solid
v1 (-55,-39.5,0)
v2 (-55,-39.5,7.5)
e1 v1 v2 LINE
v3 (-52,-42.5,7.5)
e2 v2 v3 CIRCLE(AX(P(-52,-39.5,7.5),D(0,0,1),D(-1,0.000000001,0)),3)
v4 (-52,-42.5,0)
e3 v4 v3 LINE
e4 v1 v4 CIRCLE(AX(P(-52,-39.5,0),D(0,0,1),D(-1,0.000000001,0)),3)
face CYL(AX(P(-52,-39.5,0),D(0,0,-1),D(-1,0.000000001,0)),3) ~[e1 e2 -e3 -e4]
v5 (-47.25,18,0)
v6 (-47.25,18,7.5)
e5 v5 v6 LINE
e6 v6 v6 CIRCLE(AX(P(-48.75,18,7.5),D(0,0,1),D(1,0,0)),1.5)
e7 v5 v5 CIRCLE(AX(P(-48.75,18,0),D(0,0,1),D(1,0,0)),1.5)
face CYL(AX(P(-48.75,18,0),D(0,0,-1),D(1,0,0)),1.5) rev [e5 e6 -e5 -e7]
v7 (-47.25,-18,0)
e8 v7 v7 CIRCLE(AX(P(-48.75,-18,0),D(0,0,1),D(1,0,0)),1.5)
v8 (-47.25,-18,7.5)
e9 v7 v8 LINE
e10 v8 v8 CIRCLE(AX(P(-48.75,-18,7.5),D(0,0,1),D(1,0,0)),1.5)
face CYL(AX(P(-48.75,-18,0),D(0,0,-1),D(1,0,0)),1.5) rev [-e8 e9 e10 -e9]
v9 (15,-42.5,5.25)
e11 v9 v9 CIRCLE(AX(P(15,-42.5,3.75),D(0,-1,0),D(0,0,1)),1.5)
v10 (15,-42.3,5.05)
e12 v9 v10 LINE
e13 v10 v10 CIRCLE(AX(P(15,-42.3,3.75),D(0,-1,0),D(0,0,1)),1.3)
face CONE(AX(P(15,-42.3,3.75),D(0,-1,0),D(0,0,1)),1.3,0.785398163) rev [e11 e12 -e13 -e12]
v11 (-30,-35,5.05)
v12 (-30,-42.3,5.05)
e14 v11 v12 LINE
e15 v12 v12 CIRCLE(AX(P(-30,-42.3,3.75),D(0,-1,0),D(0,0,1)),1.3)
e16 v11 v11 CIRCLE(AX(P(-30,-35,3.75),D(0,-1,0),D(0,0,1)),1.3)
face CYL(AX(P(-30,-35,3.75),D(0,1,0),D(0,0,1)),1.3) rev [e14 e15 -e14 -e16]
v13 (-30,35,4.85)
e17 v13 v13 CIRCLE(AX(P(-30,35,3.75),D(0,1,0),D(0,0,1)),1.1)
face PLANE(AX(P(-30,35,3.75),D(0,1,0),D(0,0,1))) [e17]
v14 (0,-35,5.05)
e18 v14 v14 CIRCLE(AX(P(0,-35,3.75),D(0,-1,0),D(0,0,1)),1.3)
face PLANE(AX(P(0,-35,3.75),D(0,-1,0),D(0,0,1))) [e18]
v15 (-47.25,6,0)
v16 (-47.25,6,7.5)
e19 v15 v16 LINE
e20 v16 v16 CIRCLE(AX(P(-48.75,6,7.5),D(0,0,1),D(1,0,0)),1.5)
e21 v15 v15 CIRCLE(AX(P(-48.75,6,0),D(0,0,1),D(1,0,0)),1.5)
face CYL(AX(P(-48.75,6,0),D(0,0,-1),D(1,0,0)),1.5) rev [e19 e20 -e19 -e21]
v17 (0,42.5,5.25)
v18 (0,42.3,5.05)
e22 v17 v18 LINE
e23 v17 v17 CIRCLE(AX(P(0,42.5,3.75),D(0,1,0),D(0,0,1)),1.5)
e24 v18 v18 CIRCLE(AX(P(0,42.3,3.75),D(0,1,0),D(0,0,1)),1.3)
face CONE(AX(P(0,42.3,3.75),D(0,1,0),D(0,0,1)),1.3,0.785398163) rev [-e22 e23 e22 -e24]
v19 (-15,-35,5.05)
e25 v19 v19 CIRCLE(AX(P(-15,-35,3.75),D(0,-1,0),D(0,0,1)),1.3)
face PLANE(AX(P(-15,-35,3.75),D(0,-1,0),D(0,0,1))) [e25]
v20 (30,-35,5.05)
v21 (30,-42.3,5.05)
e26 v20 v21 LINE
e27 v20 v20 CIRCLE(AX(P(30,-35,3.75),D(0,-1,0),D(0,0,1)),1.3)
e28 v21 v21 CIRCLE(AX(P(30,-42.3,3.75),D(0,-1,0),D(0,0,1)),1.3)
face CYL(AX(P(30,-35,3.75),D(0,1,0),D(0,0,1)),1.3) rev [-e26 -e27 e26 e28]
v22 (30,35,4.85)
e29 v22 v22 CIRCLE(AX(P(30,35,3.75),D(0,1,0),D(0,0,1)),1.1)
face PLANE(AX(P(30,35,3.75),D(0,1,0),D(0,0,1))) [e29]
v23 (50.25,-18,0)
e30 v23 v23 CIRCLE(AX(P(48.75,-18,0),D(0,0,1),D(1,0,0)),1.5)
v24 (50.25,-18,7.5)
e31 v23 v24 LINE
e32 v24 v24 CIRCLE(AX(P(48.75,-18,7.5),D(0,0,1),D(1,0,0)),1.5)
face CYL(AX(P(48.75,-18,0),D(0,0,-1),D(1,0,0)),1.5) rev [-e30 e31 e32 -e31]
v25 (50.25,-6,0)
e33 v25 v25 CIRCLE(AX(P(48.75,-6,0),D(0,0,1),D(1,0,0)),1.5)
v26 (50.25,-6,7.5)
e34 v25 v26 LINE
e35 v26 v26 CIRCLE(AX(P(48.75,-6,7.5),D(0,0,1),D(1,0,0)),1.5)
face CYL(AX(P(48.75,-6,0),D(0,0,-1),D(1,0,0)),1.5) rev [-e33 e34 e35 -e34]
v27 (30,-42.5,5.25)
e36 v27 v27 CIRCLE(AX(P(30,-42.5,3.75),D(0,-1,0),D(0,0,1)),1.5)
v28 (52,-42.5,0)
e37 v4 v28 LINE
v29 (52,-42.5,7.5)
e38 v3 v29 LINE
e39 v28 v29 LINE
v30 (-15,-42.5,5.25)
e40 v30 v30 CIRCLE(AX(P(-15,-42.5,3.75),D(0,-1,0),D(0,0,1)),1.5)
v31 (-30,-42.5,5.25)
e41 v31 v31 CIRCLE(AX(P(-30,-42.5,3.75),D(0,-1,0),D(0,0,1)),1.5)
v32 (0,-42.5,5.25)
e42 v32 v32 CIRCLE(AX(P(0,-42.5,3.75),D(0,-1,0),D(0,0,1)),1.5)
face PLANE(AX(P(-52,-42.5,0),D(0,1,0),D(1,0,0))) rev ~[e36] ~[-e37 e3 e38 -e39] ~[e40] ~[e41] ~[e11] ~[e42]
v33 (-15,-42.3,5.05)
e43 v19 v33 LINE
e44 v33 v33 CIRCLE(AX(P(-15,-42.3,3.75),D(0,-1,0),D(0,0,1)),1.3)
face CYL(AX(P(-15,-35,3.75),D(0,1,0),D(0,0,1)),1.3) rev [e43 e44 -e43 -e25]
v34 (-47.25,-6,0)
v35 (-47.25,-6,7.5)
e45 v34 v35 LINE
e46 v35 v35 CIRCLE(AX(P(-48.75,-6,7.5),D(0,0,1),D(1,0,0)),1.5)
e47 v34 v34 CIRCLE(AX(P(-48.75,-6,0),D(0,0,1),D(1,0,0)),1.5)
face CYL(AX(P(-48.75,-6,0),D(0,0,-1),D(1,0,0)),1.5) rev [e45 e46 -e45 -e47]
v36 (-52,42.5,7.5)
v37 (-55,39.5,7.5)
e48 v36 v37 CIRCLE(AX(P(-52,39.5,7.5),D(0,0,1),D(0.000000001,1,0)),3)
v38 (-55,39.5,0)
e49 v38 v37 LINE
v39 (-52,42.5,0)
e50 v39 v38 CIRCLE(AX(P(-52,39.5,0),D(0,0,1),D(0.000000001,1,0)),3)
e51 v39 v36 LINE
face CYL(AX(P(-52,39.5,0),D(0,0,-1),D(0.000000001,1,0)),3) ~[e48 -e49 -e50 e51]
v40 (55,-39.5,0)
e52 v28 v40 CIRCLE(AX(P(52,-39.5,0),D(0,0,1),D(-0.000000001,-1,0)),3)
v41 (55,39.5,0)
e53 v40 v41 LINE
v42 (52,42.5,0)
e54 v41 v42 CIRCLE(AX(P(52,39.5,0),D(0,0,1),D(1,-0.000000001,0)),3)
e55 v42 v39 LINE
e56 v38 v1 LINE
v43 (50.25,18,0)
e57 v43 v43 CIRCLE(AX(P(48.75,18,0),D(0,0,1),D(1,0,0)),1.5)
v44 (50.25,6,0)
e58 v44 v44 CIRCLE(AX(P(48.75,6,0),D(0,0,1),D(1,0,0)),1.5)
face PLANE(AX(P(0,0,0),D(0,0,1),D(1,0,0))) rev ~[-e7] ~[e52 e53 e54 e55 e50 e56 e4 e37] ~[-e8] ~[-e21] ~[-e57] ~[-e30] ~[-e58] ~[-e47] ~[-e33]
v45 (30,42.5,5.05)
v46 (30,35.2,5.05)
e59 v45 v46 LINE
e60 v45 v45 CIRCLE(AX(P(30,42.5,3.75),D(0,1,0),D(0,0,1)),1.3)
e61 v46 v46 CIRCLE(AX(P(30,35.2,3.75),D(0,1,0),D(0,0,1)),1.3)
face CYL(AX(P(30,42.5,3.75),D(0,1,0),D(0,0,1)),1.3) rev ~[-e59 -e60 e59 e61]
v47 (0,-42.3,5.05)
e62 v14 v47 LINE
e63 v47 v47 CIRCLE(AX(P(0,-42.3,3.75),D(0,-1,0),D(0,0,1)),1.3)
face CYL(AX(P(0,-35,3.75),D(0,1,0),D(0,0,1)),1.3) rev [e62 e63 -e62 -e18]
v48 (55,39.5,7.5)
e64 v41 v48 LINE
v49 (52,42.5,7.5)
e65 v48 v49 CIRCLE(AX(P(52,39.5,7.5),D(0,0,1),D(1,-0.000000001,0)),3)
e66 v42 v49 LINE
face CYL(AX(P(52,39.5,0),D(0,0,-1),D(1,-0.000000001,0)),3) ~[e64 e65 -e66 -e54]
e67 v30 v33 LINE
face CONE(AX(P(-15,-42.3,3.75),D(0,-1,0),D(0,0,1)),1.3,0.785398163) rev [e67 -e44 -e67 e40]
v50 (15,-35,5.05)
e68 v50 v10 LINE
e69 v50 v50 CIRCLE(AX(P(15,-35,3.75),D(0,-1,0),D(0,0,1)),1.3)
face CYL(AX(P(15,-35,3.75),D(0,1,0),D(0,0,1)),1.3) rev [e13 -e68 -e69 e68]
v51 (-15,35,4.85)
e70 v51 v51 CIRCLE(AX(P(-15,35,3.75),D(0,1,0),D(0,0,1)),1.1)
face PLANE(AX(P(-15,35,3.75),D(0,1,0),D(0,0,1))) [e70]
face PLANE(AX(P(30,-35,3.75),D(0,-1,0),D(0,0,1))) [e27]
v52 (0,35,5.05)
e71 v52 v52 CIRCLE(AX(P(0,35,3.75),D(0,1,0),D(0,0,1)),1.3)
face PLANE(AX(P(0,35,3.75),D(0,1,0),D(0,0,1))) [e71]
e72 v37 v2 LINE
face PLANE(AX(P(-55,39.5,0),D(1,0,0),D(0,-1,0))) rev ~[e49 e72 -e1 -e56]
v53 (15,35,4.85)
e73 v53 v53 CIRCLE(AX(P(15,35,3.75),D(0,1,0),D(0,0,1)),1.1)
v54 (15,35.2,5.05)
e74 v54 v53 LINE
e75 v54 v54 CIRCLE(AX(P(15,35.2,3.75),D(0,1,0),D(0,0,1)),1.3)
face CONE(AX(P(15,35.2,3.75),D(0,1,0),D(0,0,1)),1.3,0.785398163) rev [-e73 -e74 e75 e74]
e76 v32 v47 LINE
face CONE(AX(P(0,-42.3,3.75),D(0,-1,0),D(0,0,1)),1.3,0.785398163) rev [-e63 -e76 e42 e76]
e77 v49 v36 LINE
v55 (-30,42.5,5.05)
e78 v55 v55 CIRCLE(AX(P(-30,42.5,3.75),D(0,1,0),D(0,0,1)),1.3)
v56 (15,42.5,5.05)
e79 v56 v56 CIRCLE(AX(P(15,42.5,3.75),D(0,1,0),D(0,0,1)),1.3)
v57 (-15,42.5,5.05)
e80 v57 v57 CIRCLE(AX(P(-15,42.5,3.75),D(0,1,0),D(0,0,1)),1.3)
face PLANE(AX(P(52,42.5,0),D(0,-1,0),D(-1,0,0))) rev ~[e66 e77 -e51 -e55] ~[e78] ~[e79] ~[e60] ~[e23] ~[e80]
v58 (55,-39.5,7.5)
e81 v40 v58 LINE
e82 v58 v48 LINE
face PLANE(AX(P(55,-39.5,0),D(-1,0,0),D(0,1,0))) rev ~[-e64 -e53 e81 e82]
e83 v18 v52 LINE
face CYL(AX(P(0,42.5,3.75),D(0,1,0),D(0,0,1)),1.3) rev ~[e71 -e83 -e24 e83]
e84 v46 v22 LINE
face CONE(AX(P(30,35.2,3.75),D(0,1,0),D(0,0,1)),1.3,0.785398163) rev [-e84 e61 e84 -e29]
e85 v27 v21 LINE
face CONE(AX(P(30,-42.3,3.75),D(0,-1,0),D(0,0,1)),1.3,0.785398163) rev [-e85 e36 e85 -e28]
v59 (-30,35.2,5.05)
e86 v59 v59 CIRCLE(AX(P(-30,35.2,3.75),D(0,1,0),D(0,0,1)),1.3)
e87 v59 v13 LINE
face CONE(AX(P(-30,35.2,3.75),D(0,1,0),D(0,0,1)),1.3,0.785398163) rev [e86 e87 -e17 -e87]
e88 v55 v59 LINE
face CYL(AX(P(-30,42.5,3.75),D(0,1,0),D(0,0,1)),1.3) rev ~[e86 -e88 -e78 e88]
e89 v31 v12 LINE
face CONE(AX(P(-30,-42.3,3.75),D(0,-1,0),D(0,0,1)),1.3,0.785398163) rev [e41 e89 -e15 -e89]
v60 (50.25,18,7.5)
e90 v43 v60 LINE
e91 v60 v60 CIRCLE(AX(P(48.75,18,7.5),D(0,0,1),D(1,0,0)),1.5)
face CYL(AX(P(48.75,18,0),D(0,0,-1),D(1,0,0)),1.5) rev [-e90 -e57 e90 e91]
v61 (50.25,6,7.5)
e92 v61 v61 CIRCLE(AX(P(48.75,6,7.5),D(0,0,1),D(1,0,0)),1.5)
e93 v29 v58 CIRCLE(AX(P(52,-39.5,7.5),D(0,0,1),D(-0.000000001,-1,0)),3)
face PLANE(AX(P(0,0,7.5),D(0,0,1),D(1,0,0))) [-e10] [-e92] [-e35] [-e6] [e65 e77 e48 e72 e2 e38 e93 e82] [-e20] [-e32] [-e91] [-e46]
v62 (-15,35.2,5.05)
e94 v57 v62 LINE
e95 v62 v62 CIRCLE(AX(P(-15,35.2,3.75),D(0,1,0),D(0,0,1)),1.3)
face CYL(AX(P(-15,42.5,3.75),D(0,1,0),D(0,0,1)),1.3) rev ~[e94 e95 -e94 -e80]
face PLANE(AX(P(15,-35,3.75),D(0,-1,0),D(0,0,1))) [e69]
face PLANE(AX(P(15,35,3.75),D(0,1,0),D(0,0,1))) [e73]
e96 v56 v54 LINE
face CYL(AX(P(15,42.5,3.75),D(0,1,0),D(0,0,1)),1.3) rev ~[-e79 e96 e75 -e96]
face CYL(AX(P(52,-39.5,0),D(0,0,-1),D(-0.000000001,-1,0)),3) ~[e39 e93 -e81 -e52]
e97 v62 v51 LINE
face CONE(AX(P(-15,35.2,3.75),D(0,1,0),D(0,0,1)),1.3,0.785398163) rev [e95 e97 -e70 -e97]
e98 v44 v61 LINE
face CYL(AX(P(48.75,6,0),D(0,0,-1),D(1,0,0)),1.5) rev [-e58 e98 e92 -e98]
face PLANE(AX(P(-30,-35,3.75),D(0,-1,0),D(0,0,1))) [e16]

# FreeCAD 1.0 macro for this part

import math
import FreeCAD as App
import Part
import Sketcher

V = App.Vector
Q = App.Units.Quantity


def edges_at(feature, points):
    """Names of the edges that pass closest to the given points."""
    edges = feature.Shape.Edges
    near = lambda p: min(range(len(edges)), key=lambda i: edges[i].distToShape(Part.Vertex(*p))[0])
    return sorted({f"Edge{near(p) + 1}" for p in points})

doc = App.newDocument("Part")
body = doc.addObject("PartDesign::Body", "Body")

# Sketch on XY plane
sketch1 = body.newObject("Sketcher::SketchObject", "Sketch")
sketch1.AttachmentSupport = (doc.getObject("XY_Plane"), [""])
sketch1.MapMode = "FlatFace"
sketch1.addGeometry([
    Part.LineSegment(V(-52, -42.5, 0), V(52, -42.5, 0)),  # 0
    Part.ArcOfCircle(Part.Circle(V(52, -39.5, 0), V(0, 0, 1), 3), math.radians(-90), math.radians(0)),  # 1
    Part.LineSegment(V(55, -39.5, 0), V(55, 39.5, 0)),  # 2
    Part.ArcOfCircle(Part.Circle(V(52, 39.5, 0), V(0, 0, 1), 3), math.radians(0), math.radians(90)),  # 3
    Part.LineSegment(V(52, 42.5, 0), V(-52, 42.5, 0)),  # 4
    Part.ArcOfCircle(Part.Circle(V(-52, 39.5, 0), V(0, 0, 1), 3), math.radians(90), math.radians(180)),  # 5
    Part.LineSegment(V(-55, 39.5, 0), V(-55, -39.5, 0)),  # 6
    Part.ArcOfCircle(Part.Circle(V(-52, -39.5, 0), V(0, 0, 1), 3), math.radians(180), math.radians(270)),  # 7
    Part.Circle(V(-48.8, -18, 0), V(0, 0, 1), 1.5),  # 8
    Part.Circle(V(-48.8, -6, 0), V(0, 0, 1), 1.5),  # 9
    Part.Circle(V(48.8, -18, 0), V(0, 0, 1), 1.5),  # 10
    Part.Circle(V(48.8, -6, 0), V(0, 0, 1), 1.5),  # 11
    Part.Circle(V(-48.8, 6, 0), V(0, 0, 1), 1.5),  # 12
    Part.Circle(V(-48.8, 18, 0), V(0, 0, 1), 1.5),  # 13
    Part.Circle(V(48.8, 6, 0), V(0, 0, 1), 1.5),  # 14
    Part.Circle(V(48.8, 18, 0), V(0, 0, 1), 1.5),  # 15
], False)
sketch1.addConstraint([
    Sketcher.Constraint("Tangent", 0, 2, 1, 1),
    Sketcher.Constraint("Tangent", 1, 2, 2, 1),
    Sketcher.Constraint("Tangent", 2, 2, 3, 1),
    Sketcher.Constraint("Tangent", 3, 2, 4, 1),
    Sketcher.Constraint("Tangent", 4, 2, 5, 1),
    Sketcher.Constraint("Tangent", 5, 2, 6, 1),
    Sketcher.Constraint("Tangent", 6, 2, 7, 1),
    Sketcher.Constraint("Tangent", 7, 2, 0, 1),
    Sketcher.Constraint("Horizontal", 0),
    Sketcher.Constraint("Vertical", 2),
    Sketcher.Constraint("Horizontal", 4),
    Sketcher.Constraint("Vertical", 6),
    Sketcher.Constraint("Equal", 1, 3),
    Sketcher.Constraint("Equal", 3, 5),
    Sketcher.Constraint("Equal", 5, 7),
    Sketcher.Constraint("Equal", 8, 9),
    Sketcher.Constraint("Equal", 9, 10),
    Sketcher.Constraint("Equal", 10, 11),
    Sketcher.Constraint("Equal", 11, 12),
    Sketcher.Constraint("Equal", 12, 13),
    Sketcher.Constraint("Equal", 13, 14),
    Sketcher.Constraint("Equal", 14, 15),
    Sketcher.Constraint("Symmetric", 1, 3, 5, 3, -1, 1),
    Sketcher.Constraint("Symmetric", 11, 3, 12, 3, -1, 1),
    Sketcher.Constraint("Symmetric", 10, 3, 13, 3, -1, 1),
    Sketcher.Constraint("Symmetric", 9, 3, 14, 3, -1, 1),
    Sketcher.Constraint("Symmetric", 8, 3, 15, 3, -1, 1),
    Sketcher.Constraint("Symmetric", 8, 3, 10, 3, -2),
    Sketcher.Constraint("Symmetric", 9, 3, 11, 3, -2),
    Sketcher.Constraint("Vertical", 8, 3, 9, 3),
    Sketcher.Constraint("Diameter", 8, Q("3 mm")),
    Sketcher.Constraint("Radius", 1, Q("3 mm")),
    Sketcher.Constraint("DistanceX", 0, 1, 0, 2, Q("104 mm")),
    Sketcher.Constraint("DistanceY", 2, 1, 2, 2, Q("79 mm")),
    Sketcher.Constraint("DistanceY", 8, 3, -1, 1, Q("18 mm")),
    Sketcher.Constraint("DistanceY", 9, 3, -1, 1, Q("6 mm")),
    Sketcher.Constraint("DistanceX", 8, 3, 10, 3, Q("97.5 mm")),
])
pad1 = body.newObject("PartDesign::Pad", "Pad")
pad1.Profile = sketch1
pad1.Length = 7.5

# Sketch on XZ plane
sketch2 = body.newObject("Sketcher::SketchObject", "Sketch001")
sketch2.AttachmentSupport = (doc.getObject("XZ_Plane"), [""])
sketch2.MapMode = "FlatFace"
sketch2.AttachmentOffset = App.Placement(V(0, 0, -42.5), App.Rotation())
sketch2.addGeometry([
    Part.Circle(V(-15, 3.8, 0), V(0, 0, 1), 1.3),  # 0
    Part.Circle(V(30, 3.8, 0), V(0, 0, 1), 1.3),  # 1
    Part.Circle(V(0, 3.8, 0), V(0, 0, 1), 1.3),  # 2
    Part.Circle(V(15, 3.8, 0), V(0, 0, 1), 1.3),  # 3
    Part.Circle(V(-30, 3.8, 0), V(0, 0, 1), 1.3),  # 4
], False)
sketch2.addConstraint([
    Sketcher.Constraint("Equal", 0, 1),
    Sketcher.Constraint("Equal", 1, 2),
    Sketcher.Constraint("Equal", 2, 3),
    Sketcher.Constraint("Equal", 3, 4),
    Sketcher.Constraint("Symmetric", 0, 3, 3, 3, -2),
    Sketcher.Constraint("Symmetric", 1, 3, 4, 3, -2),
    Sketcher.Constraint("PointOnObject", 2, 3, -2),
    Sketcher.Constraint("Horizontal", 0, 3, 1, 3),
    Sketcher.Constraint("Horizontal", 1, 3, 2, 3),
    Sketcher.Constraint("Diameter", 0, Q("2.6 mm")),
    Sketcher.Constraint("DistanceX", 0, 3, -1, 1, Q("15 mm")),
    Sketcher.Constraint("DistanceX", -1, 1, 1, 3, Q("30 mm")),
    Sketcher.Constraint("DistanceY", -1, 1, 0, 3, Q("3.75 mm")),
])
pocket1 = body.newObject("PartDesign::Pocket", "Pocket")
pocket1.Profile = sketch2
pocket1.Length = 7.5
pocket1.Reversed = True

# Sketch on XZ plane
sketch3 = body.newObject("Sketcher::SketchObject", "Sketch002")
sketch3.AttachmentSupport = (doc.getObject("XZ_Plane"), [""])
sketch3.MapMode = "FlatFace"
sketch3.AttachmentOffset = App.Placement(V(0, 0, 35), App.Rotation())
sketch3.addGeometry([
    Part.Circle(V(15, 3.8, 0), V(0, 0, 1), 1.3),  # 0
    Part.Circle(V(30, 3.8, 0), V(0, 0, 1), 1.3),  # 1
    Part.Circle(V(0, 3.8, 0), V(0, 0, 1), 1.3),  # 2
    Part.Circle(V(-15, 3.8, 0), V(0, 0, 1), 1.3),  # 3
    Part.Circle(V(-30, 3.8, 0), V(0, 0, 1), 1.3),  # 4
], False)
sketch3.addConstraint([
    Sketcher.Constraint("Equal", 0, 1),
    Sketcher.Constraint("Equal", 1, 2),
    Sketcher.Constraint("Equal", 2, 3),
    Sketcher.Constraint("Equal", 3, 4),
    Sketcher.Constraint("Symmetric", 0, 3, 3, 3, -2),
    Sketcher.Constraint("Symmetric", 1, 3, 4, 3, -2),
    Sketcher.Constraint("PointOnObject", 2, 3, -2),
    Sketcher.Constraint("Horizontal", 0, 3, 1, 3),
    Sketcher.Constraint("Horizontal", 1, 3, 2, 3),
    Sketcher.Constraint("Diameter", 0, Q("2.6 mm")),
    Sketcher.Constraint("DistanceX", -1, 1, 0, 3, Q("15 mm")),
    Sketcher.Constraint("DistanceX", -1, 1, 1, 3, Q("30 mm")),
    Sketcher.Constraint("DistanceY", -1, 1, 0, 3, Q("3.75 mm")),
])
pocket2 = body.newObject("PartDesign::Pocket", "Pocket001")
pocket2.Profile = sketch3
pocket2.Length = 7.5
pocket2.Reversed = True
doc.recompute()

chamfer = body.newObject("PartDesign::Chamfer", "Chamfer")
chamfer.Base = (pocket2, edges_at(pocket2, [
    (-30, 35, 2.45),
    (-15, 35, 2.45),
    (30, 35, 2.45),
    (15, 35, 2.45),
    (0, 42.5, 2.45),
]))
chamfer.Size = 0.2
doc.recompute()

chamfer2 = body.newObject("PartDesign::Chamfer", "Chamfer001")
chamfer2.Base = (chamfer, edges_at(chamfer, [
    (-30, -42.5, 2.45),
    (-15, -42.5, 2.45),
    (0, -42.5, 2.45),
    (30, -42.5, 2.45),
    (15, -42.5, 2.45),
]))
chamfer2.Size = 0.2

doc.recompute()
